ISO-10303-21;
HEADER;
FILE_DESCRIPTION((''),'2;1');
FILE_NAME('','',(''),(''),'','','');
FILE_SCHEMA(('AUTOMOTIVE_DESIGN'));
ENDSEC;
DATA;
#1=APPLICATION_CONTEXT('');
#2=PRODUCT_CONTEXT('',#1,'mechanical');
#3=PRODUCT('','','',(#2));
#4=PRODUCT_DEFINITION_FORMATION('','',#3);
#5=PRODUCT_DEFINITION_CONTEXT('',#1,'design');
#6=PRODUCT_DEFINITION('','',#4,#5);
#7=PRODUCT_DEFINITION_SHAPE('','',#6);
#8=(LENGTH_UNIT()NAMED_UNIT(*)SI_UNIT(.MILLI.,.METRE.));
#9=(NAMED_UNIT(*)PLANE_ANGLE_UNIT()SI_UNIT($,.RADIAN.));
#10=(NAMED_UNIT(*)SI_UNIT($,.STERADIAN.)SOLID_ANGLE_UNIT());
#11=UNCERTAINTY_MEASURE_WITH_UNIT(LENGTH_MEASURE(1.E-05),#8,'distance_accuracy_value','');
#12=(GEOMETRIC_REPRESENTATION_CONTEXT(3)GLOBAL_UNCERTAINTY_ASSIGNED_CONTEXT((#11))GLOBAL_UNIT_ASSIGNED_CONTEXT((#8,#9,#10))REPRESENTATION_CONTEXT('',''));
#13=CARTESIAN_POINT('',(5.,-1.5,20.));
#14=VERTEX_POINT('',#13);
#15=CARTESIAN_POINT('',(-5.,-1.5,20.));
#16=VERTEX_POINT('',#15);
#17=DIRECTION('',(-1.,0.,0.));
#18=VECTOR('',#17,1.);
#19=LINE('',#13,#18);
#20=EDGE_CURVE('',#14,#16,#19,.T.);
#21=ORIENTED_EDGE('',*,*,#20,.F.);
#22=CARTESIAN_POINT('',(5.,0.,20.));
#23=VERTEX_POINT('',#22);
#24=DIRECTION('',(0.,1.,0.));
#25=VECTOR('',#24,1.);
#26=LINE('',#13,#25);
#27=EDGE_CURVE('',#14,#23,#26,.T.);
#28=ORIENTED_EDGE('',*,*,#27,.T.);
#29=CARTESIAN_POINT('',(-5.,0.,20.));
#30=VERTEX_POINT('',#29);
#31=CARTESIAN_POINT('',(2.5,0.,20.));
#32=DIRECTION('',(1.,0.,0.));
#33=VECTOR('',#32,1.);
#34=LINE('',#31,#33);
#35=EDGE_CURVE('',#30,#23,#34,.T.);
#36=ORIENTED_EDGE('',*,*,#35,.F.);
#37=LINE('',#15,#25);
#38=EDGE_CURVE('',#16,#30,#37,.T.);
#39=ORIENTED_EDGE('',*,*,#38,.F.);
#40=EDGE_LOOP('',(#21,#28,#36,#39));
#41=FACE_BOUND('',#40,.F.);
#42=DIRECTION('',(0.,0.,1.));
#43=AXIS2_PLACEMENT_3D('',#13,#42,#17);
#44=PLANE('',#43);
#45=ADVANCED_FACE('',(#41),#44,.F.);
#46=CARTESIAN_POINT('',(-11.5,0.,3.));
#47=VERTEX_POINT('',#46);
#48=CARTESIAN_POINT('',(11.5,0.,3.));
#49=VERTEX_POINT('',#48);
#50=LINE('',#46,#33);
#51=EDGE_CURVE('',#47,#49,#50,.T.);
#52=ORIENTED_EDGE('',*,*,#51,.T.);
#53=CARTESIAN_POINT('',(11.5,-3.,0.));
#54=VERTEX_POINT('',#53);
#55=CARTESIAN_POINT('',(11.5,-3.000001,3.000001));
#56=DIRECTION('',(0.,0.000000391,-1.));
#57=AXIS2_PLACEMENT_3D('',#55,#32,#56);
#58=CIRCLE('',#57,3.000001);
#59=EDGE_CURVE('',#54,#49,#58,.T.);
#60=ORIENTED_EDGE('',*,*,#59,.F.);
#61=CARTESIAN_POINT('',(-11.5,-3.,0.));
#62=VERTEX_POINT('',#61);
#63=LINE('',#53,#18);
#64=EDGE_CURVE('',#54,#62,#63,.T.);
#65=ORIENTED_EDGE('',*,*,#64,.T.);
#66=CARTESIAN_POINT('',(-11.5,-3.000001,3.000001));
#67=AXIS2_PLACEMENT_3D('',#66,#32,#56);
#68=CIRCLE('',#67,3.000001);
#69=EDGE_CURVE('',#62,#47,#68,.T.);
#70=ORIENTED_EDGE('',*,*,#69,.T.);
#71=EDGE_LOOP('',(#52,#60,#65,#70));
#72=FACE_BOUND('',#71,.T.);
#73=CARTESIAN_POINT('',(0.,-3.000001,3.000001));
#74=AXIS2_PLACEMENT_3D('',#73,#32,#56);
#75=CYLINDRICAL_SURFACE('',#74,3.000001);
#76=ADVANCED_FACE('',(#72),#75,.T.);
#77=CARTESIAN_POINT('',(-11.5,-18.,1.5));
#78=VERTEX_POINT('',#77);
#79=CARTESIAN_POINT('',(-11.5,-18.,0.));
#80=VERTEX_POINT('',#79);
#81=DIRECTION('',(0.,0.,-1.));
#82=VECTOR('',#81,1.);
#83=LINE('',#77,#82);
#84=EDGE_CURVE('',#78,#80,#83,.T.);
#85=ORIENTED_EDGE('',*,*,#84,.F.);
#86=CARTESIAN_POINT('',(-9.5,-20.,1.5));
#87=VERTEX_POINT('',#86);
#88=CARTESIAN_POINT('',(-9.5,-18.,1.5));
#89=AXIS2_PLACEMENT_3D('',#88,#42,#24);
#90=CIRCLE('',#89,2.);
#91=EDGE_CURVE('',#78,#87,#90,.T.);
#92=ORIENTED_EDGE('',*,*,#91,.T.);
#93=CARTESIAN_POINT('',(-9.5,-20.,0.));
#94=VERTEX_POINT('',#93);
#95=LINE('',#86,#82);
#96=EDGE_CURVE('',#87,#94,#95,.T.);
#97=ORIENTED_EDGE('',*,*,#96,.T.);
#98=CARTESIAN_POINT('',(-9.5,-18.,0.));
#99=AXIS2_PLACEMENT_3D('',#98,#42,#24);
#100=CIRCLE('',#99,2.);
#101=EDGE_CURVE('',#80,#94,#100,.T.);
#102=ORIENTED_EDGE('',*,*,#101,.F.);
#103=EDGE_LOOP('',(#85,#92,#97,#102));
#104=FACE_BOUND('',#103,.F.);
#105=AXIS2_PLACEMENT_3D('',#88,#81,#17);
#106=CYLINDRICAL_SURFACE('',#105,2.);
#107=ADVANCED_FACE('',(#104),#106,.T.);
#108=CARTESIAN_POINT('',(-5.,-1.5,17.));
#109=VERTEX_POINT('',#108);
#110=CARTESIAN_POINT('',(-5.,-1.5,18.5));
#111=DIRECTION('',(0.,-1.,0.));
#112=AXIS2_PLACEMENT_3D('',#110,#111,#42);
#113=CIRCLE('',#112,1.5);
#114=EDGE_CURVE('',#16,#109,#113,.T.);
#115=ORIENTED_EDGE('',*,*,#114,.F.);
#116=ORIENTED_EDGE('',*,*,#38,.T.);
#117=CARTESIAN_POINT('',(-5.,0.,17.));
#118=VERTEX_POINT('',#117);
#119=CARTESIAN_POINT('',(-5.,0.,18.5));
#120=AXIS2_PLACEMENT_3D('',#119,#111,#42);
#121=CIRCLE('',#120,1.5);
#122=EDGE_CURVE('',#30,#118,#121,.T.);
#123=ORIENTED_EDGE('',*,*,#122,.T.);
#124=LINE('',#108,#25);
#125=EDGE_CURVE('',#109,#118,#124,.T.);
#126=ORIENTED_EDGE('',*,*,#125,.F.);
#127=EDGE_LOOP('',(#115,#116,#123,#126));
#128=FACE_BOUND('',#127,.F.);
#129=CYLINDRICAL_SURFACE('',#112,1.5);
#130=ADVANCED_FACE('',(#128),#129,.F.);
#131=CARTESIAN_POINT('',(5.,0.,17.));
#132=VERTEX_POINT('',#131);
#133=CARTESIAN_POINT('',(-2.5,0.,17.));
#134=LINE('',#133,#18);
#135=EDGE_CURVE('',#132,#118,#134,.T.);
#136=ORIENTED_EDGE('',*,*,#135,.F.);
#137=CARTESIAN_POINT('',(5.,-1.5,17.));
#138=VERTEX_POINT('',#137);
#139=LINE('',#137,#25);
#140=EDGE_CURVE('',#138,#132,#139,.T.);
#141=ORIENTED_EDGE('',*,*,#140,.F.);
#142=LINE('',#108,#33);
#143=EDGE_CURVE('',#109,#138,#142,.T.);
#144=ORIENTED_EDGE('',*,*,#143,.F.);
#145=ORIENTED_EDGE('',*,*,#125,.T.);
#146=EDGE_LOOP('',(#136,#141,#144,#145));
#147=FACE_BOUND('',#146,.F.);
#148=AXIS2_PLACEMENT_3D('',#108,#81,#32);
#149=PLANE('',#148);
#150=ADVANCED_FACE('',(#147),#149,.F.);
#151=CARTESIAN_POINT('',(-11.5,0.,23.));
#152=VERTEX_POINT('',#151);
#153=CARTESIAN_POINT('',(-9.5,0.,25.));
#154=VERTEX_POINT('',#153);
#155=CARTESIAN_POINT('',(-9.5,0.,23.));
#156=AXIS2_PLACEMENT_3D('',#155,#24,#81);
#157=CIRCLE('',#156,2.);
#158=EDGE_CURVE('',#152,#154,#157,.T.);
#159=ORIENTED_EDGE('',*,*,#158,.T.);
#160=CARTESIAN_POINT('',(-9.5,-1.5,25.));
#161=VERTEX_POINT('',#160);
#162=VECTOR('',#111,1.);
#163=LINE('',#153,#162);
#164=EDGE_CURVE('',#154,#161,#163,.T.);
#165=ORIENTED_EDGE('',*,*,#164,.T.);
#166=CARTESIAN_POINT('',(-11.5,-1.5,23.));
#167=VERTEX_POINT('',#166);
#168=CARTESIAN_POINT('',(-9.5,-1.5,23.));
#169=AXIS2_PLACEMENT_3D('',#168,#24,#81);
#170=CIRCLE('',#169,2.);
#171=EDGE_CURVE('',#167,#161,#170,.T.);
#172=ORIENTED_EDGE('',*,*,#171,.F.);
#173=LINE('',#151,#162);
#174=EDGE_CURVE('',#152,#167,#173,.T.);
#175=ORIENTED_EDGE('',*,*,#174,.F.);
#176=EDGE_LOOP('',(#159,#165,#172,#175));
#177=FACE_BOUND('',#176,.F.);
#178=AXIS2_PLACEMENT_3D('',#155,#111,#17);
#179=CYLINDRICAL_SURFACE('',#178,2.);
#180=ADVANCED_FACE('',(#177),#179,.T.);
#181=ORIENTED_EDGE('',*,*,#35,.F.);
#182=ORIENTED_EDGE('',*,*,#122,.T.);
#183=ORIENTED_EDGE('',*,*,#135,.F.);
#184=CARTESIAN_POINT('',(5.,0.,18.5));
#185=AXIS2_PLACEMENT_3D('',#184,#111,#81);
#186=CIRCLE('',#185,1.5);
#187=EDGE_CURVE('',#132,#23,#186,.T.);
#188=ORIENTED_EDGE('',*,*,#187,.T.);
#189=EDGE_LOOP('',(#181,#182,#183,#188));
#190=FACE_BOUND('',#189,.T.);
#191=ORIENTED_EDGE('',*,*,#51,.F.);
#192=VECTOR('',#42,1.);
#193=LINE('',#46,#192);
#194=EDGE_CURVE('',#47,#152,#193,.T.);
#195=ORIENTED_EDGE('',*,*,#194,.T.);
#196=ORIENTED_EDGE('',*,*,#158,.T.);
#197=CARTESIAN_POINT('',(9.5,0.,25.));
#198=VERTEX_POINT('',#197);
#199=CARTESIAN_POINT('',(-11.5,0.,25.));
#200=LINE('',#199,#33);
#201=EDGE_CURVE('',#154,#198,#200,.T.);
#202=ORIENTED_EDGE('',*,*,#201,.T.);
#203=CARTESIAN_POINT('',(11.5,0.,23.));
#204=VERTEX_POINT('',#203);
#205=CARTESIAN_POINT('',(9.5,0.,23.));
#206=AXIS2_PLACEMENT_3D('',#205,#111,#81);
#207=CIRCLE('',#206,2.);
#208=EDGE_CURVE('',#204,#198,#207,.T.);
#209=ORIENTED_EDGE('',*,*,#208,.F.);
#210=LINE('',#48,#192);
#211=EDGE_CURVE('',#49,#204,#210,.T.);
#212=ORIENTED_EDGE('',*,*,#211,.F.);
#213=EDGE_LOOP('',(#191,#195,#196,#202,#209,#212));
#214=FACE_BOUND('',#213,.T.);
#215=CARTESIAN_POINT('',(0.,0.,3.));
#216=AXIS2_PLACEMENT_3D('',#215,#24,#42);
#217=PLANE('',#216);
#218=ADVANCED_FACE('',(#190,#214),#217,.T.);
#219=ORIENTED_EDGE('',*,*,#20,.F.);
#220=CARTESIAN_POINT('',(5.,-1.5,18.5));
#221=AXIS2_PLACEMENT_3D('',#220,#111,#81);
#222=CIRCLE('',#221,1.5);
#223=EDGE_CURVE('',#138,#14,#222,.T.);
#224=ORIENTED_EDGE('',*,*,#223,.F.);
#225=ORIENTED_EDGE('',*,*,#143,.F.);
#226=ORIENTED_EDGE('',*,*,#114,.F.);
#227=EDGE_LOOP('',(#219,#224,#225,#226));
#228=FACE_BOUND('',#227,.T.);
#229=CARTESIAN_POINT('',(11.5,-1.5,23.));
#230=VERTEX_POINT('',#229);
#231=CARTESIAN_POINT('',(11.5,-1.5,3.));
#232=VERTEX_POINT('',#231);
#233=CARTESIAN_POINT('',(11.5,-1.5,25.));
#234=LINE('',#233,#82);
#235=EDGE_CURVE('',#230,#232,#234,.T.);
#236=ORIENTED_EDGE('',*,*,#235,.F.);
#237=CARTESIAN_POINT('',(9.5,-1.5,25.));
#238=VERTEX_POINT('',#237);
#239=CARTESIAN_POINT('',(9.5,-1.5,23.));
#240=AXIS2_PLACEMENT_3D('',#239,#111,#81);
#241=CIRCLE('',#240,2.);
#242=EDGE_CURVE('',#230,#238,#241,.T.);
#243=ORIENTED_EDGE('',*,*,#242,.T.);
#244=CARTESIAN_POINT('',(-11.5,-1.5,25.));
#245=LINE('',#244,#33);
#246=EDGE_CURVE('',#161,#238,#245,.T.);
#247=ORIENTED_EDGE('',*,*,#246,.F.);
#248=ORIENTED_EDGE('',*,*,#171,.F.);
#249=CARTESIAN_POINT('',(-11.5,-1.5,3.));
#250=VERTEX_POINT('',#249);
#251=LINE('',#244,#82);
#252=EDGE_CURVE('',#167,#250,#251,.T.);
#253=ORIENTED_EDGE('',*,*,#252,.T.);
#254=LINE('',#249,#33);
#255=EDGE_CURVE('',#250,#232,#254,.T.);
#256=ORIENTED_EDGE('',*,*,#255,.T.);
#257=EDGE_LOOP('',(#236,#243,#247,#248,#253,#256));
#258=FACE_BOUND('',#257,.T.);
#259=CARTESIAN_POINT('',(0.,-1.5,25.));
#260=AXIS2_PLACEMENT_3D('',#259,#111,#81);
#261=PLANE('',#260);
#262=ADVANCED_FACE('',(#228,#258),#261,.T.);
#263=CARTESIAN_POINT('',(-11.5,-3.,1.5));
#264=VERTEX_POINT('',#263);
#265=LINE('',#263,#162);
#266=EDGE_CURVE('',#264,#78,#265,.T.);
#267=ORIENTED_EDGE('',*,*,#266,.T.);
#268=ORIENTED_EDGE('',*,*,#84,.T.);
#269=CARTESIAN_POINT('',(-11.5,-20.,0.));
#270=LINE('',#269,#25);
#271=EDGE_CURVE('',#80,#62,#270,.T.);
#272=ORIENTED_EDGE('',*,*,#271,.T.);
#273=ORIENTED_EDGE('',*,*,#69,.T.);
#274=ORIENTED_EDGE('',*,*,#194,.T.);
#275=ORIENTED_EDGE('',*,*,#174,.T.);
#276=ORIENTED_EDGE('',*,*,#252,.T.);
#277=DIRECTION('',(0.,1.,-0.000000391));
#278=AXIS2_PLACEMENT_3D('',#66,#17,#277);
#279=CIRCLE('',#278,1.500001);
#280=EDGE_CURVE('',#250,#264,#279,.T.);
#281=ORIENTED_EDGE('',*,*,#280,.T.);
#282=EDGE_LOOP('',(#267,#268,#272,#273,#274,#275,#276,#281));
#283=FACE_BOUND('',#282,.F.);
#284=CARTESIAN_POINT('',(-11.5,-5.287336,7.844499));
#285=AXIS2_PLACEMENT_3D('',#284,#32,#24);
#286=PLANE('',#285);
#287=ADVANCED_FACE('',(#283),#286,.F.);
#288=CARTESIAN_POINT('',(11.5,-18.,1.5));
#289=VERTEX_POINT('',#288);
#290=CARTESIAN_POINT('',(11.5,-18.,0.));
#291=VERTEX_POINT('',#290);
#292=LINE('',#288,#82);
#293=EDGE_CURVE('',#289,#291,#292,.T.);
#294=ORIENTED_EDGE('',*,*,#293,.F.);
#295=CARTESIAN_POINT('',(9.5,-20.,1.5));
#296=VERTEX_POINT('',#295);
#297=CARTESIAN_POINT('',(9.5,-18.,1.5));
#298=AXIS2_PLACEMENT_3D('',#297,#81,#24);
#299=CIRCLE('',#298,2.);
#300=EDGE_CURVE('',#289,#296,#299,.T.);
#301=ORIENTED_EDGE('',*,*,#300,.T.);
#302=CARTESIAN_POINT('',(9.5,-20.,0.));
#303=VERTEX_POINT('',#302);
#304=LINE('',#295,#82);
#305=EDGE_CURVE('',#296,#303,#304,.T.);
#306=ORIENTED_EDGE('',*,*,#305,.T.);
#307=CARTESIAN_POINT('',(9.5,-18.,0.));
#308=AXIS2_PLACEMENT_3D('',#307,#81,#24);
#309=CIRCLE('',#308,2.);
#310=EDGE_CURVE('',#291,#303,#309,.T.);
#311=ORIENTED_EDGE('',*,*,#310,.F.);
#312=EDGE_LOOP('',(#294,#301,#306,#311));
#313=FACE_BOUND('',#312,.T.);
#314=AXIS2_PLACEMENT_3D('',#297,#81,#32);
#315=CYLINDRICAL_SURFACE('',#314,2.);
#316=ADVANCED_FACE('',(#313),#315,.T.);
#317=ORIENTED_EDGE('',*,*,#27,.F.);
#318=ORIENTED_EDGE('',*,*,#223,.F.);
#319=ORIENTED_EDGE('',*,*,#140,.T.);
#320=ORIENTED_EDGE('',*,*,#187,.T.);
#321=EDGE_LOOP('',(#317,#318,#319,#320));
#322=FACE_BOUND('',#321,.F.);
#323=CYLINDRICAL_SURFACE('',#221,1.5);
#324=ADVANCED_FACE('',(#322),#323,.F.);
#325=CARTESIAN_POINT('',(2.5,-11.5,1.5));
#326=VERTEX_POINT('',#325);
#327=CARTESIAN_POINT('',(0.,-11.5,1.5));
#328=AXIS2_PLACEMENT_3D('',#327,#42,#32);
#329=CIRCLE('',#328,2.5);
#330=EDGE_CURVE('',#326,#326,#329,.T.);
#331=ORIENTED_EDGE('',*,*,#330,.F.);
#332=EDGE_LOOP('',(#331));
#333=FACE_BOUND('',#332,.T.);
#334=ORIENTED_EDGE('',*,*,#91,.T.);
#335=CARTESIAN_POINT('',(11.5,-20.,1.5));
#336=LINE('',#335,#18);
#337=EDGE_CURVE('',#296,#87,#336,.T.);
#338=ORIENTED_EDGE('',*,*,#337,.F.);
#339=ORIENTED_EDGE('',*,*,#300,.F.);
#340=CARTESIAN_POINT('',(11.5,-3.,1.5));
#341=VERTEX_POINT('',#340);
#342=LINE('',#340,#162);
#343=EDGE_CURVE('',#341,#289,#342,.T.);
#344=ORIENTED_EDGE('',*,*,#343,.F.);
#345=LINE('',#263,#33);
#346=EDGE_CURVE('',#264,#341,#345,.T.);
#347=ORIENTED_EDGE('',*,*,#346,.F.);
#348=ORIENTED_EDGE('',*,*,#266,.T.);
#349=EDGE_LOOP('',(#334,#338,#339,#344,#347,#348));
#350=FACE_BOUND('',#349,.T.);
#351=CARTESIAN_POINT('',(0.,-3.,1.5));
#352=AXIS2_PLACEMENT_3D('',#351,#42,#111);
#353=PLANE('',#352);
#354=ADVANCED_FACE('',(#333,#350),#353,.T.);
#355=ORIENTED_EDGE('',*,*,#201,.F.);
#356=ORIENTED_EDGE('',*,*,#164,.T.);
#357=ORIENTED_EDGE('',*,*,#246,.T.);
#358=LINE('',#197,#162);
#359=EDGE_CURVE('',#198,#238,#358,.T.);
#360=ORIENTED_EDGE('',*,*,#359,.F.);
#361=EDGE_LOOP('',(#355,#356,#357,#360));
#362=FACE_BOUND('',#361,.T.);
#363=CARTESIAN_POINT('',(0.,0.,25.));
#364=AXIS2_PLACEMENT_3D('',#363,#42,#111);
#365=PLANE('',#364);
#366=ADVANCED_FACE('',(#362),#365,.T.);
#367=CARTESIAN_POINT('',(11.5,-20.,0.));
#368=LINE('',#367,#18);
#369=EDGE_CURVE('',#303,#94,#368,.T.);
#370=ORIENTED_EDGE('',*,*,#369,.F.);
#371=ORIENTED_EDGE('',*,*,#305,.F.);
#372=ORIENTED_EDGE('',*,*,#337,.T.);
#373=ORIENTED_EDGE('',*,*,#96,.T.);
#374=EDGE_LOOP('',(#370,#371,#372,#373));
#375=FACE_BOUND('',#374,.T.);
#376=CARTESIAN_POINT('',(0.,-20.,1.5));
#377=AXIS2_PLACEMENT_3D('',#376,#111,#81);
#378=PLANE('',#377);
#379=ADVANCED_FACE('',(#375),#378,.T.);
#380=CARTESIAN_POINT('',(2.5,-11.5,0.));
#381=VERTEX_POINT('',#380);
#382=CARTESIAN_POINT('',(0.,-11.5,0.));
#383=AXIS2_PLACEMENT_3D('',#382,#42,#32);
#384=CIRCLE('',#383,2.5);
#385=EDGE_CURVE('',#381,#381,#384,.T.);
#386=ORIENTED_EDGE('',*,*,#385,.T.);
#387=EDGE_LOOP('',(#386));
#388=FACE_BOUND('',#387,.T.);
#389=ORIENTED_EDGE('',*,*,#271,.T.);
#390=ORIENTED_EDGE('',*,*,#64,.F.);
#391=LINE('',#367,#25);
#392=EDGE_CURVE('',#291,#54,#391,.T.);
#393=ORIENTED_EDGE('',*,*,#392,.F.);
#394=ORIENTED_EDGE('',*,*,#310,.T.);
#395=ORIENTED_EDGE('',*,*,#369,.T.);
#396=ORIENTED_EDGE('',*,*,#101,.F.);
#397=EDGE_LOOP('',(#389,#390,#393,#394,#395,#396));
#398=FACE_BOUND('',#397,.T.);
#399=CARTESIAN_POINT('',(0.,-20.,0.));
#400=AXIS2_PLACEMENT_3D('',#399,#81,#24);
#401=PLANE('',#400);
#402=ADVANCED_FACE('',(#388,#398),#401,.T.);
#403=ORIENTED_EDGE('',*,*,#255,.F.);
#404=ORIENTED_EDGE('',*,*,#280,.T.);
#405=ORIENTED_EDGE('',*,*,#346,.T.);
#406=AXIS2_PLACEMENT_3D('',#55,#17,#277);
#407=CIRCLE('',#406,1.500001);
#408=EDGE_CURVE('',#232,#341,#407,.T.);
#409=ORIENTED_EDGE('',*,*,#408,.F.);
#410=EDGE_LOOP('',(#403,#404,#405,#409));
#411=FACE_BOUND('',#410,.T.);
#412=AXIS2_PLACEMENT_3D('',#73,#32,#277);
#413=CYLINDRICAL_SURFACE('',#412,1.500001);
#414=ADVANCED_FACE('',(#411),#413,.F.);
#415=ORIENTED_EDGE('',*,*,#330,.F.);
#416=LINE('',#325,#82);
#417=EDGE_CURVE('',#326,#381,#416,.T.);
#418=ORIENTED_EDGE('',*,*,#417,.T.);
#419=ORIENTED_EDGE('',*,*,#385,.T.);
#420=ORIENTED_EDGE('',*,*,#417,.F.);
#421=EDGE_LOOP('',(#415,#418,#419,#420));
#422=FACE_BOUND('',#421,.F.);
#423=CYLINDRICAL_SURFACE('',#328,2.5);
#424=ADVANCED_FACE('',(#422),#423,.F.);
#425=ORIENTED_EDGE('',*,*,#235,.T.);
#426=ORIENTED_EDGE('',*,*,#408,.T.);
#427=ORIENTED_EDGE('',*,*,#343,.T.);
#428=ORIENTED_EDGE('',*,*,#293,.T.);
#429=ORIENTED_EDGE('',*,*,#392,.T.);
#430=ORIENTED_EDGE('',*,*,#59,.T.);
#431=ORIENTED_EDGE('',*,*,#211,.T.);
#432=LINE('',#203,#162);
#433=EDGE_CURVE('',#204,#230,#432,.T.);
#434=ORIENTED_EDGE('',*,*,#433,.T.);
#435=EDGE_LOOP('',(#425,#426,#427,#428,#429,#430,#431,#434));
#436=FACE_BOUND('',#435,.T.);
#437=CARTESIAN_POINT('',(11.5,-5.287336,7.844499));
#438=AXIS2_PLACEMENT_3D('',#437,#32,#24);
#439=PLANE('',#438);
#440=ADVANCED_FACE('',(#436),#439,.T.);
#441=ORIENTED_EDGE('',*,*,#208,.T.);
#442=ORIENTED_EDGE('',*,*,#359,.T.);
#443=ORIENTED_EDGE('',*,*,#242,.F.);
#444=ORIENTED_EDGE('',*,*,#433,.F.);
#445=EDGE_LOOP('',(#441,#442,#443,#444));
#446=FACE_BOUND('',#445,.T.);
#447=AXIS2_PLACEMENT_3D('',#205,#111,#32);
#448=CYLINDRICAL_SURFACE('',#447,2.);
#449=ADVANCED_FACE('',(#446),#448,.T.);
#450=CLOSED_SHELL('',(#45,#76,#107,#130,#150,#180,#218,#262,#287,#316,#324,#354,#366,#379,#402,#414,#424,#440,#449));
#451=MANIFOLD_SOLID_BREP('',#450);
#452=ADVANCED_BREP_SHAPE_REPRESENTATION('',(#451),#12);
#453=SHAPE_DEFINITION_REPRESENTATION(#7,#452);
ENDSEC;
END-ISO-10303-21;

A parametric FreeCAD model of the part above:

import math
import FreeCAD as App
import Part
import Sketcher


def edges_at(feature, points):
    """Names of the edges that pass closest to the given points."""
    edges = feature.Shape.Edges
    near = lambda p: min(range(len(edges)), key=lambda i: edges[i].distToShape(Part.Vertex(*p))[0])
    return sorted({f"Edge{near(p) + 1}" for p in points})

doc = App.newDocument("Part")
params = doc.addObject("Spreadsheet::Sheet", "Params")
for row, (alias, value) in enumerate([
    ("sketch1_radius", "3.000001 mm"),
    ("sketch1_radius2", "1.500001 mm"),
    ("sketch1_width", "17 mm"),
    ("sketch1_height", "22 mm"),
    ("pad1_length", "23 mm"),
    ("sketch2_diameter", "5 mm"),
    ("pocket1_length", "25 mm"),
    ("sketch3_radius", "1.5 mm"),
    ("sketch3_width", "10 mm"),
    ("pocket2_length", "25 mm"),
    ("fillet_radius", "2 mm"),
], start=1):
    params.set(f"A{row}", alias)
    params.set(f"B{row}", "=" + value)
    params.setAlias(f"B{row}", alias)

body = doc.addObject("PartDesign::Body", "Body")

sketch1 = body.newObject("Sketcher::SketchObject", "Sketch")
sketch1.AttachmentSupport = (doc.getObject("YZ_Plane"), [""])
sketch1.MapMode = "FlatFace"
sketch1.addGeometry([
    Part.ArcOfCircle(Part.Circle(App.Vector(-3, 3, 0), App.Vector(0, 0, 1), 3), math.radians(-90), math.radians(0)),
    Part.LineSegment(App.Vector(0, 3, 0), App.Vector(0, 25, 0)),
    Part.LineSegment(App.Vector(0, 25, 0), App.Vector(-1.5, 25, 0)),
    Part.LineSegment(App.Vector(-1.5, 25, 0), App.Vector(-1.5, 3, 0)),
    Part.ArcOfCircle(Part.Circle(App.Vector(-3, 3, 0), App.Vector(0, 0, 1), 1.5), math.radians(-90), math.radians(0)),
    Part.LineSegment(App.Vector(-3, 1.5, 0), App.Vector(-20, 1.5, 0)),
    Part.LineSegment(App.Vector(-20, 1.5, 0), App.Vector(-20, 0, 0)),
    Part.LineSegment(App.Vector(-20, 0, 0), App.Vector(-3, 0, 0)),
], False)
sketch1.addConstraint([
    Sketcher.Constraint("Tangent", 0, 2, 1, 1),
    Sketcher.Constraint("Coincident", 1, 2, 2, 1),
    Sketcher.Constraint("Coincident", 2, 2, 3, 1),
    Sketcher.Constraint("Tangent", 3, 2, 4, 2),
    Sketcher.Constraint("Tangent", 4, 1, 5, 1),
    Sketcher.Constraint("Coincident", 5, 2, 6, 1),
    Sketcher.Constraint("Coincident", 6, 2, 7, 1),
    Sketcher.Constraint("Tangent", 7, 2, 0, 1),
    Sketcher.Constraint("Vertical", 1),
    Sketcher.Constraint("Horizontal", 2),
    Sketcher.Constraint("Vertical", 3),
    Sketcher.Constraint("Horizontal", 5),
    Sketcher.Constraint("Vertical", 6),
    Sketcher.Constraint("Horizontal", 7),
    Sketcher.Constraint("Coincident", 4, 3, 0, 3),
    Sketcher.Constraint("PointOnObject", 0, 2, -2),
    Sketcher.Constraint("PointOnObject", 6, 2, -1),
    Sketcher.Constraint("Radius", 0, 3.000001),
    Sketcher.Constraint("Radius", 4, 1.500001),
    Sketcher.Constraint("DistanceX", 5, 2, 5, 1, 17.0),
    Sketcher.Constraint("DistanceY", 1, 1, 1, 2, 22.0),
])
sketch1.setExpression("Constraints[17]", "Params.sketch1_radius")
sketch1.setExpression("Constraints[18]", "Params.sketch1_radius2")
sketch1.setExpression("Constraints[19]", "Params.sketch1_width")
sketch1.setExpression("Constraints[20]", "Params.sketch1_height")
pad1 = body.newObject("PartDesign::Pad", "Pad")
pad1.Profile = sketch1
pad1.setExpression("Length", "Params.pad1_length")
pad1.Midplane = True

sketch2 = body.newObject("Sketcher::SketchObject", "Sketch001")
sketch2.AttachmentSupport = (doc.getObject("XY_Plane"), [""])
sketch2.MapMode = "FlatFace"
sketch2.AttachmentOffset = App.Placement(App.Vector(0, 0, 1.5), App.Rotation())
sketch2.addGeometry(Part.Circle(App.Vector(0, -11.5, 0), App.Vector(0, 0, 1), 2.5), False)
sketch2.addConstraint([
    Sketcher.Constraint("PointOnObject", 0, 3, -2),
    Sketcher.Constraint("Diameter", 0, 5.0),
    Sketcher.Constraint("DistanceY", 0, 3, -1, 1, 11.5),
])
sketch2.setExpression("Constraints[1]", "Params.sketch2_diameter")
pocket1 = body.newObject("PartDesign::Pocket", "Pocket")
pocket1.Profile = sketch2
pocket1.setExpression("Length", "Params.pocket1_length")

sketch3 = body.newObject("Sketcher::SketchObject", "Sketch002")
sketch3.AttachmentSupport = (doc.getObject("XZ_Plane"), [""])
sketch3.MapMode = "FlatFace"
sketch3.AttachmentOffset = App.Placement(App.Vector(0, 0, 1.5), App.Rotation())
sketch3.addGeometry([
    Part.LineSegment(App.Vector(5, 20, 0), App.Vector(-5, 20, 0)),
    Part.ArcOfCircle(Part.Circle(App.Vector(-5, 18.5, 0), App.Vector(0, 0, 1), 1.5), math.radians(90), math.radians(270)),
    Part.LineSegment(App.Vector(-5, 17, 0), App.Vector(5, 17, 0)),
    Part.ArcOfCircle(Part.Circle(App.Vector(5, 18.5, 0), App.Vector(0, 0, 1), 1.5), math.radians(-90), math.radians(90)),
], False)
sketch3.addConstraint([
    Sketcher.Constraint("Tangent", 0, 2, 1, 1),
    Sketcher.Constraint("Tangent", 1, 2, 2, 1),
    Sketcher.Constraint("Tangent", 2, 2, 3, 1),
    Sketcher.Constraint("Tangent", 3, 2, 0, 1),
    Sketcher.Constraint("Horizontal", 0),
    Sketcher.Constraint("Horizontal", 2),
    Sketcher.Constraint("Radius", 1, 1.5),
    Sketcher.Constraint("DistanceX", 0, 2, 0, 1, 10.0),
    Sketcher.Constraint("DistanceX", 1, 3, -1, 1, 5.0),
    Sketcher.Constraint("DistanceY", -1, 1, 0, 2, 20.0),
])
sketch3.setExpression("Constraints[6]", "Params.sketch3_radius")
sketch3.setExpression("Constraints[7]", "Params.sketch3_width")
pocket2 = body.newObject("PartDesign::Pocket", "Pocket001")
pocket2.Profile = sketch3
pocket2.setExpression("Length", "Params.pocket2_length")
doc.recompute()

fillet = body.newObject("PartDesign::Fillet", "Fillet")
fillet.Base = (pocket2, edges_at(pocket2, [
    (11.5, -0.75, 25),
    (-11.5, -0.75, 25),
    (11.5, -20, 0.75),
    (-11.5, -20, 0.75),
]))
fillet.setExpression("Radius", "Params.fillet_radius")

doc.recompute()
